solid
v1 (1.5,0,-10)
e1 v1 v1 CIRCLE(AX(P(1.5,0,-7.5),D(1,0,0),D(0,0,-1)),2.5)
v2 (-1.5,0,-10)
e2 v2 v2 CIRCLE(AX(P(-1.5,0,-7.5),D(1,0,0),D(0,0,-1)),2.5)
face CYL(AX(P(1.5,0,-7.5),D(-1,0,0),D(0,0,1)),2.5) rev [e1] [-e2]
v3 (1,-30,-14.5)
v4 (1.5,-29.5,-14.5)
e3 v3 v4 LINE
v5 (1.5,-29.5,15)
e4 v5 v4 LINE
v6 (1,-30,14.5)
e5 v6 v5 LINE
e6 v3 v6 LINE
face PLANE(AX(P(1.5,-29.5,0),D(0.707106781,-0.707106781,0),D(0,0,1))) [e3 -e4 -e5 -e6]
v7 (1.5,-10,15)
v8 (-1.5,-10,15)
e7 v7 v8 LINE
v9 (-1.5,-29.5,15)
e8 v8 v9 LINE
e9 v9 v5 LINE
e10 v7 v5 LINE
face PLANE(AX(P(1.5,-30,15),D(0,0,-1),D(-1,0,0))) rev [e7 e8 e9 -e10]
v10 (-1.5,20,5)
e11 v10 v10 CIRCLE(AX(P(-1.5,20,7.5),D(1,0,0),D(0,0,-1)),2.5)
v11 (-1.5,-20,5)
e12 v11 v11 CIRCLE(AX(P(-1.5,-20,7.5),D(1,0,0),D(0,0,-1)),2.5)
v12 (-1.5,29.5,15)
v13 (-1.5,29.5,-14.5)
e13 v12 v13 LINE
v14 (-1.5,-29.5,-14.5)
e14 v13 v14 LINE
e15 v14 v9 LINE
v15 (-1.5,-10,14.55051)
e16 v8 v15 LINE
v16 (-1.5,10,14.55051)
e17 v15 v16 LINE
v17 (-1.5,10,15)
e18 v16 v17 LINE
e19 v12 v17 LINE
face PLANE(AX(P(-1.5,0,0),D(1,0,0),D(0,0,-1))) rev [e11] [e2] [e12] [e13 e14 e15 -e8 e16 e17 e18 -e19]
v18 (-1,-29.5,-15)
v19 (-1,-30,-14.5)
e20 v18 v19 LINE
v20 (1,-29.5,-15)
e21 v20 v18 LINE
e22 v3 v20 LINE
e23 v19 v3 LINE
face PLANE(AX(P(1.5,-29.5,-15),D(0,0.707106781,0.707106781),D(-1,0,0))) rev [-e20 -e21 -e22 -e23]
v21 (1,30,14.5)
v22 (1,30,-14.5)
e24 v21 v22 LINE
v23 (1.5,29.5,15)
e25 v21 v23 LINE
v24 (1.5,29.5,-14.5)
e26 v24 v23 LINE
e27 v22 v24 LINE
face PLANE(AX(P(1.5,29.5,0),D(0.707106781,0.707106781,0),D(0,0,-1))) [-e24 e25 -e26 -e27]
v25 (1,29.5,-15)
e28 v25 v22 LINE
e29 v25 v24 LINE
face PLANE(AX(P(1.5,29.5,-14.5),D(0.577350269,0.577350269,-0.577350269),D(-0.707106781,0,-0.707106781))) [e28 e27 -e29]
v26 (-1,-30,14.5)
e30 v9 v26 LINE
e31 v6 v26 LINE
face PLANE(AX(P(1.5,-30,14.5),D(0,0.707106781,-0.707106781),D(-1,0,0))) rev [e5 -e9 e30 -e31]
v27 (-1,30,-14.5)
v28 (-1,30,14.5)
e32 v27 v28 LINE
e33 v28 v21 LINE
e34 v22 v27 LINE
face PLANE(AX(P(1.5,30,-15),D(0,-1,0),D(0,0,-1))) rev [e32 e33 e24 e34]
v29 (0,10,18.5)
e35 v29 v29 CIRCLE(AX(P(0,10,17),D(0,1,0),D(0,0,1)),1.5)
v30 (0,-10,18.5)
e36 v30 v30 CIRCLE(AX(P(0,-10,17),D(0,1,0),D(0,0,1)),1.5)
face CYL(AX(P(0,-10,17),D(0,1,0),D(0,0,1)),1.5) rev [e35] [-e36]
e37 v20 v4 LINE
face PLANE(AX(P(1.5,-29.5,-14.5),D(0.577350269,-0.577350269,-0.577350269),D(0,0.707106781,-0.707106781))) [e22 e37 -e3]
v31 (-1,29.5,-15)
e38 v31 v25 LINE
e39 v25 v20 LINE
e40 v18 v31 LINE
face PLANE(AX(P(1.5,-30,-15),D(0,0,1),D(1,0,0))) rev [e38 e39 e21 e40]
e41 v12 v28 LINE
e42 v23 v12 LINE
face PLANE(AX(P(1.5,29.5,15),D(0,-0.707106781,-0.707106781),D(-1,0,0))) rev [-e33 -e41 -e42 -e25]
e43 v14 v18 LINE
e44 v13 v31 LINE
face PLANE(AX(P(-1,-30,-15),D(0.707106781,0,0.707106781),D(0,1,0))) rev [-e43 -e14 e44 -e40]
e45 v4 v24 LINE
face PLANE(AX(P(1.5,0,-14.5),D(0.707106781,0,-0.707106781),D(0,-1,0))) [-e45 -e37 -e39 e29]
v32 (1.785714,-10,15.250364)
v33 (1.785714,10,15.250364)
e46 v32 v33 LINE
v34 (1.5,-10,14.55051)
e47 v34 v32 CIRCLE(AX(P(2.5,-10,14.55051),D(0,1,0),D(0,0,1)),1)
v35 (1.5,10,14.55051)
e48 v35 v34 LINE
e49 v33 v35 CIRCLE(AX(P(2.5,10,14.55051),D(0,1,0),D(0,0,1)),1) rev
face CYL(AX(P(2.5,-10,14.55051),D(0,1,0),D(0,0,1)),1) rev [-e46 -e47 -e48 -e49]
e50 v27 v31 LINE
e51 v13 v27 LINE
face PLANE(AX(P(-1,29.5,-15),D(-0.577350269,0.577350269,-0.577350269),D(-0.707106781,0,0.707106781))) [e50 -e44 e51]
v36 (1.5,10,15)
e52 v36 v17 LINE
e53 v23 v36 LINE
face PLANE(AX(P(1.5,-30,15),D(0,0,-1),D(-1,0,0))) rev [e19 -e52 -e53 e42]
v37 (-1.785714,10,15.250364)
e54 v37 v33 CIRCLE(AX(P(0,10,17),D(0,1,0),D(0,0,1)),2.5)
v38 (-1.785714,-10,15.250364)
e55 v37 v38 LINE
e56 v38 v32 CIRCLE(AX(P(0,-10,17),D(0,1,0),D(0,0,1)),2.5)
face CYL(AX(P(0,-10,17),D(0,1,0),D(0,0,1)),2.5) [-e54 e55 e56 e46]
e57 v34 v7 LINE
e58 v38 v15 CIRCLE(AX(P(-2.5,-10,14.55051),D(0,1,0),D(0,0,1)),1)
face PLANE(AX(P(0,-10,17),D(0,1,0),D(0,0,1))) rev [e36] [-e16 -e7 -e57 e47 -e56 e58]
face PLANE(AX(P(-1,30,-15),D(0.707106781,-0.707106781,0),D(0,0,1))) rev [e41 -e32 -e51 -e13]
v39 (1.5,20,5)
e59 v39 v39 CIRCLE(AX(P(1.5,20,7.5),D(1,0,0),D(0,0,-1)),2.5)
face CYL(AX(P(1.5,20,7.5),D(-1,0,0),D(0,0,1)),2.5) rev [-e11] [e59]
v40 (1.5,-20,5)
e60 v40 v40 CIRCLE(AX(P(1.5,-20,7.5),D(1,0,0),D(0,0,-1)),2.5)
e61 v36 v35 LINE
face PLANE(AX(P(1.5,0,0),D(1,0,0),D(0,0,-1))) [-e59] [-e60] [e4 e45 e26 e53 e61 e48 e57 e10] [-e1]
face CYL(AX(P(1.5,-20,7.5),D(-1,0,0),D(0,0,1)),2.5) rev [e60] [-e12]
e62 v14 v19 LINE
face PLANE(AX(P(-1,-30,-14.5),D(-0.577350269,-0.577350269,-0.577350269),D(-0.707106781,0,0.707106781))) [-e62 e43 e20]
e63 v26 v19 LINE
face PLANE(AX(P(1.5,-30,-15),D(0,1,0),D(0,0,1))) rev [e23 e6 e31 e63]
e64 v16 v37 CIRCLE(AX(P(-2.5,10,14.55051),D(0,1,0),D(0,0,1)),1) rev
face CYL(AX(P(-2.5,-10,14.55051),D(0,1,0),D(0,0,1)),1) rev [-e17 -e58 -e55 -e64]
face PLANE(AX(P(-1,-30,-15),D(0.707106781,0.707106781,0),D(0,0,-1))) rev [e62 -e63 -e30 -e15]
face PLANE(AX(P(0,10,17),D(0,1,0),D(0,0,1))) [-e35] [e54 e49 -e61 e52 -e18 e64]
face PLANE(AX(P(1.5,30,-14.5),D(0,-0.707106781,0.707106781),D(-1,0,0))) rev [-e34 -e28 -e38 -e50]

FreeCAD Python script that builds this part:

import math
import FreeCAD as App
import Part
import Sketcher
Q = App.Units.Quantity


def edges_at(feature, points):
    """Names of the edges that pass closest to the given points."""
    edges = feature.Shape.Edges
    near = lambda p: min(range(len(edges)), key=lambda i: edges[i].distToShape(Part.Vertex(*p))[0])
    return sorted({f"Edge{near(p) + 1}" for p in points})


def add_polygon(sketch, points):
    """Adds a closed chain of lines whose ends are joined by coincident constraints."""
    first, n = sketch.GeometryCount, len(points)
    for a, b in zip(points, points[1:] + points[:1]):
        sketch.addGeometry(Part.LineSegment(App.Vector(*a, 0), App.Vector(*b, 0)), False)
    for i in range(n):
        sketch.addConstraint(Sketcher.Constraint("Coincident", first + i, 2, first + (i + 1) % n, 1))

doc = App.newDocument("Part")
params = doc.addObject("Spreadsheet::Sheet", "Params")
for row, (alias, value) in enumerate([
    ("sketch1_diameter", "5 mm"),
    ("sketch1_width", "60 mm"),
    ("sketch1_height", "30 mm"),
    ("pad1_length", "3 mm"),
    ("sketch2_diameter", "3 mm"),
    ("sketch2_radius", "2.5 mm"),
    ("sketch2_width", "3 mm"),
    ("pad2_length", "20 mm"),
    ("fillet_radius", "1 mm"),
    ("chamfer_size", "0.5 mm"),
], start=1):
    params.set(f"A{row}", alias)
    params.set(f"B{row}", "=" + value)
    params.setAlias(f"B{row}", alias)

body = doc.addObject("PartDesign::Body", "Body")

sketch1 = doc.addObject("Sketcher::SketchObject", "Sketch")
body.addObject(sketch1)
sketch1.AttachmentSupport = (doc.YZ_Plane, [""])
sketch1.MapMode = "FlatFace"
add_polygon(sketch1, [(30, 15), (-30, 15), (-30, -15), (30, -15)])
sketch1.addGeometry(Part.Circle(App.Vector(-20, 7.5, 0), App.Vector(0, 0, 1), 2.5), False)
sketch1.addGeometry(Part.Circle(App.Vector(20, 7.5, 0), App.Vector(0, 0, 1), 2.5), False)
sketch1.addGeometry(Part.Circle(App.Vector(0, -7.5, 0), App.Vector(0, 0, 1), 2.5), False)
sketch1.addConstraint([
    Sketcher.Constraint("Horizontal", 0),
    Sketcher.Constraint("Vertical", 1),
    Sketcher.Constraint("Horizontal", 2),
    Sketcher.Constraint("Vertical", 3),
    Sketcher.Constraint("Equal", 4, 5),
    Sketcher.Constraint("Equal", 5, 6),
    Sketcher.Constraint("Symmetric", 0, 2, 2, 2, -1, 1),
    Sketcher.Constraint("Symmetric", 4, 3, 5, 3, -2),
    Sketcher.Constraint("PointOnObject", 6, 3, -2),
    Sketcher.Constraint("Diameter", 4, Q("5 mm")),
    Sketcher.Constraint("DistanceX", 0, 2, 0, 1, Q("60 mm")),
    Sketcher.Constraint("DistanceY", 1, 2, 1, 1, Q("30 mm")),
    Sketcher.Constraint("DistanceX", 4, 3, -1, 1, Q("20 mm")),
    Sketcher.Constraint("DistanceY", 6, 3, 4, 3, Q("15 mm")),
    Sketcher.Constraint("DistanceY", -1, 1, 4, 3, Q("7.5 mm")),
])
sketch1.setExpression("Constraints[13]", "Params.sketch1_diameter")
sketch1.setExpression("Constraints[14]", "Params.sketch1_width")
sketch1.setExpression("Constraints[15]", "Params.sketch1_height")
pad1 = doc.addObject("PartDesign::Pad", "Pad")
body.addObject(pad1)
pad1.Profile = sketch1
pad1.setExpression("Length", "Params.pad1_length")
pad1.Midplane = True

sketch2 = doc.addObject("Sketcher::SketchObject", "Sketch001")
body.addObject(sketch2)
sketch2.AttachmentSupport = (doc.XZ_Plane, [""])
sketch2.MapMode = "FlatFace"
sketch2.AttachmentOffset = App.Placement(App.Vector(0, 0, -10), App.Rotation())
sketch2.addGeometry([
    Part.LineSegment(App.Vector(1.5, 15, 0), App.Vector(-1.5, 15, 0)),
    Part.ArcOfCircle(Part.Circle(App.Vector(0, 17, 0), App.Vector(0, 0, 1), 2.5), math.radians(-53), math.radians(233)),
    Part.Circle(App.Vector(0, 17, 0), App.Vector(0, 0, 1), 1.5),
], False)
sketch2.addConstraint([
    Sketcher.Constraint("Coincident", 0, 1, 1, 1),
    Sketcher.Constraint("Coincident", 1, 2, 0, 2),
    Sketcher.Constraint("Horizontal", 0),
    Sketcher.Constraint("Coincident", 2, 3, 1, 3),
    Sketcher.Constraint("PointOnObject", 1, 3, -2),
    Sketcher.Constraint("Diameter", 2, Q("3 mm")),
    Sketcher.Constraint("Radius", 1, Q("2.5 mm")),
    Sketcher.Constraint("DistanceX", 0, 2, 0, 1, Q("3 mm")),
    Sketcher.Constraint("DistanceY", -1, 1, 1, 3, Q("17 mm")),
])
sketch2.setExpression("Constraints[5]", "Params.sketch2_diameter")
sketch2.setExpression("Constraints[6]", "Params.sketch2_radius")
sketch2.setExpression("Constraints[7]", "Params.sketch2_width")
pad2 = doc.addObject("PartDesign::Pad", "Pad001")
body.addObject(pad2)
pad2.Profile = sketch2
pad2.setExpression("Length", "Params.pad2_length")
doc.recompute()

fillet = doc.addObject("PartDesign::Fillet", "Fillet")
body.addObject(fillet)
fillet.Base = (pad2, edges_at(pad2, [(1.5, 0, 15), (-1.5, 0, 15)]))
fillet.setExpression("Radius", "Params.fillet_radius")
doc.recompute()

chamfer = doc.addObject("PartDesign::Chamfer", "Chamfer")
body.addObject(chamfer)
chamfer.Base = (fillet, edges_at(fillet, [
    (1.5, 0, -15),
    (1.5, 30, 0),
    (-1.5, 30, 0),
    (-1.5, 0, -15),
    (-1.5, -30, 0),
    (1.5, -30, 0),
    (0, 30, 15),
    (0, 30, -15),
    (0, -30, -15),
    (0, -30, 15),
]))
chamfer.setExpression("Size", "Params.chamfer_size")

doc.recompute()
